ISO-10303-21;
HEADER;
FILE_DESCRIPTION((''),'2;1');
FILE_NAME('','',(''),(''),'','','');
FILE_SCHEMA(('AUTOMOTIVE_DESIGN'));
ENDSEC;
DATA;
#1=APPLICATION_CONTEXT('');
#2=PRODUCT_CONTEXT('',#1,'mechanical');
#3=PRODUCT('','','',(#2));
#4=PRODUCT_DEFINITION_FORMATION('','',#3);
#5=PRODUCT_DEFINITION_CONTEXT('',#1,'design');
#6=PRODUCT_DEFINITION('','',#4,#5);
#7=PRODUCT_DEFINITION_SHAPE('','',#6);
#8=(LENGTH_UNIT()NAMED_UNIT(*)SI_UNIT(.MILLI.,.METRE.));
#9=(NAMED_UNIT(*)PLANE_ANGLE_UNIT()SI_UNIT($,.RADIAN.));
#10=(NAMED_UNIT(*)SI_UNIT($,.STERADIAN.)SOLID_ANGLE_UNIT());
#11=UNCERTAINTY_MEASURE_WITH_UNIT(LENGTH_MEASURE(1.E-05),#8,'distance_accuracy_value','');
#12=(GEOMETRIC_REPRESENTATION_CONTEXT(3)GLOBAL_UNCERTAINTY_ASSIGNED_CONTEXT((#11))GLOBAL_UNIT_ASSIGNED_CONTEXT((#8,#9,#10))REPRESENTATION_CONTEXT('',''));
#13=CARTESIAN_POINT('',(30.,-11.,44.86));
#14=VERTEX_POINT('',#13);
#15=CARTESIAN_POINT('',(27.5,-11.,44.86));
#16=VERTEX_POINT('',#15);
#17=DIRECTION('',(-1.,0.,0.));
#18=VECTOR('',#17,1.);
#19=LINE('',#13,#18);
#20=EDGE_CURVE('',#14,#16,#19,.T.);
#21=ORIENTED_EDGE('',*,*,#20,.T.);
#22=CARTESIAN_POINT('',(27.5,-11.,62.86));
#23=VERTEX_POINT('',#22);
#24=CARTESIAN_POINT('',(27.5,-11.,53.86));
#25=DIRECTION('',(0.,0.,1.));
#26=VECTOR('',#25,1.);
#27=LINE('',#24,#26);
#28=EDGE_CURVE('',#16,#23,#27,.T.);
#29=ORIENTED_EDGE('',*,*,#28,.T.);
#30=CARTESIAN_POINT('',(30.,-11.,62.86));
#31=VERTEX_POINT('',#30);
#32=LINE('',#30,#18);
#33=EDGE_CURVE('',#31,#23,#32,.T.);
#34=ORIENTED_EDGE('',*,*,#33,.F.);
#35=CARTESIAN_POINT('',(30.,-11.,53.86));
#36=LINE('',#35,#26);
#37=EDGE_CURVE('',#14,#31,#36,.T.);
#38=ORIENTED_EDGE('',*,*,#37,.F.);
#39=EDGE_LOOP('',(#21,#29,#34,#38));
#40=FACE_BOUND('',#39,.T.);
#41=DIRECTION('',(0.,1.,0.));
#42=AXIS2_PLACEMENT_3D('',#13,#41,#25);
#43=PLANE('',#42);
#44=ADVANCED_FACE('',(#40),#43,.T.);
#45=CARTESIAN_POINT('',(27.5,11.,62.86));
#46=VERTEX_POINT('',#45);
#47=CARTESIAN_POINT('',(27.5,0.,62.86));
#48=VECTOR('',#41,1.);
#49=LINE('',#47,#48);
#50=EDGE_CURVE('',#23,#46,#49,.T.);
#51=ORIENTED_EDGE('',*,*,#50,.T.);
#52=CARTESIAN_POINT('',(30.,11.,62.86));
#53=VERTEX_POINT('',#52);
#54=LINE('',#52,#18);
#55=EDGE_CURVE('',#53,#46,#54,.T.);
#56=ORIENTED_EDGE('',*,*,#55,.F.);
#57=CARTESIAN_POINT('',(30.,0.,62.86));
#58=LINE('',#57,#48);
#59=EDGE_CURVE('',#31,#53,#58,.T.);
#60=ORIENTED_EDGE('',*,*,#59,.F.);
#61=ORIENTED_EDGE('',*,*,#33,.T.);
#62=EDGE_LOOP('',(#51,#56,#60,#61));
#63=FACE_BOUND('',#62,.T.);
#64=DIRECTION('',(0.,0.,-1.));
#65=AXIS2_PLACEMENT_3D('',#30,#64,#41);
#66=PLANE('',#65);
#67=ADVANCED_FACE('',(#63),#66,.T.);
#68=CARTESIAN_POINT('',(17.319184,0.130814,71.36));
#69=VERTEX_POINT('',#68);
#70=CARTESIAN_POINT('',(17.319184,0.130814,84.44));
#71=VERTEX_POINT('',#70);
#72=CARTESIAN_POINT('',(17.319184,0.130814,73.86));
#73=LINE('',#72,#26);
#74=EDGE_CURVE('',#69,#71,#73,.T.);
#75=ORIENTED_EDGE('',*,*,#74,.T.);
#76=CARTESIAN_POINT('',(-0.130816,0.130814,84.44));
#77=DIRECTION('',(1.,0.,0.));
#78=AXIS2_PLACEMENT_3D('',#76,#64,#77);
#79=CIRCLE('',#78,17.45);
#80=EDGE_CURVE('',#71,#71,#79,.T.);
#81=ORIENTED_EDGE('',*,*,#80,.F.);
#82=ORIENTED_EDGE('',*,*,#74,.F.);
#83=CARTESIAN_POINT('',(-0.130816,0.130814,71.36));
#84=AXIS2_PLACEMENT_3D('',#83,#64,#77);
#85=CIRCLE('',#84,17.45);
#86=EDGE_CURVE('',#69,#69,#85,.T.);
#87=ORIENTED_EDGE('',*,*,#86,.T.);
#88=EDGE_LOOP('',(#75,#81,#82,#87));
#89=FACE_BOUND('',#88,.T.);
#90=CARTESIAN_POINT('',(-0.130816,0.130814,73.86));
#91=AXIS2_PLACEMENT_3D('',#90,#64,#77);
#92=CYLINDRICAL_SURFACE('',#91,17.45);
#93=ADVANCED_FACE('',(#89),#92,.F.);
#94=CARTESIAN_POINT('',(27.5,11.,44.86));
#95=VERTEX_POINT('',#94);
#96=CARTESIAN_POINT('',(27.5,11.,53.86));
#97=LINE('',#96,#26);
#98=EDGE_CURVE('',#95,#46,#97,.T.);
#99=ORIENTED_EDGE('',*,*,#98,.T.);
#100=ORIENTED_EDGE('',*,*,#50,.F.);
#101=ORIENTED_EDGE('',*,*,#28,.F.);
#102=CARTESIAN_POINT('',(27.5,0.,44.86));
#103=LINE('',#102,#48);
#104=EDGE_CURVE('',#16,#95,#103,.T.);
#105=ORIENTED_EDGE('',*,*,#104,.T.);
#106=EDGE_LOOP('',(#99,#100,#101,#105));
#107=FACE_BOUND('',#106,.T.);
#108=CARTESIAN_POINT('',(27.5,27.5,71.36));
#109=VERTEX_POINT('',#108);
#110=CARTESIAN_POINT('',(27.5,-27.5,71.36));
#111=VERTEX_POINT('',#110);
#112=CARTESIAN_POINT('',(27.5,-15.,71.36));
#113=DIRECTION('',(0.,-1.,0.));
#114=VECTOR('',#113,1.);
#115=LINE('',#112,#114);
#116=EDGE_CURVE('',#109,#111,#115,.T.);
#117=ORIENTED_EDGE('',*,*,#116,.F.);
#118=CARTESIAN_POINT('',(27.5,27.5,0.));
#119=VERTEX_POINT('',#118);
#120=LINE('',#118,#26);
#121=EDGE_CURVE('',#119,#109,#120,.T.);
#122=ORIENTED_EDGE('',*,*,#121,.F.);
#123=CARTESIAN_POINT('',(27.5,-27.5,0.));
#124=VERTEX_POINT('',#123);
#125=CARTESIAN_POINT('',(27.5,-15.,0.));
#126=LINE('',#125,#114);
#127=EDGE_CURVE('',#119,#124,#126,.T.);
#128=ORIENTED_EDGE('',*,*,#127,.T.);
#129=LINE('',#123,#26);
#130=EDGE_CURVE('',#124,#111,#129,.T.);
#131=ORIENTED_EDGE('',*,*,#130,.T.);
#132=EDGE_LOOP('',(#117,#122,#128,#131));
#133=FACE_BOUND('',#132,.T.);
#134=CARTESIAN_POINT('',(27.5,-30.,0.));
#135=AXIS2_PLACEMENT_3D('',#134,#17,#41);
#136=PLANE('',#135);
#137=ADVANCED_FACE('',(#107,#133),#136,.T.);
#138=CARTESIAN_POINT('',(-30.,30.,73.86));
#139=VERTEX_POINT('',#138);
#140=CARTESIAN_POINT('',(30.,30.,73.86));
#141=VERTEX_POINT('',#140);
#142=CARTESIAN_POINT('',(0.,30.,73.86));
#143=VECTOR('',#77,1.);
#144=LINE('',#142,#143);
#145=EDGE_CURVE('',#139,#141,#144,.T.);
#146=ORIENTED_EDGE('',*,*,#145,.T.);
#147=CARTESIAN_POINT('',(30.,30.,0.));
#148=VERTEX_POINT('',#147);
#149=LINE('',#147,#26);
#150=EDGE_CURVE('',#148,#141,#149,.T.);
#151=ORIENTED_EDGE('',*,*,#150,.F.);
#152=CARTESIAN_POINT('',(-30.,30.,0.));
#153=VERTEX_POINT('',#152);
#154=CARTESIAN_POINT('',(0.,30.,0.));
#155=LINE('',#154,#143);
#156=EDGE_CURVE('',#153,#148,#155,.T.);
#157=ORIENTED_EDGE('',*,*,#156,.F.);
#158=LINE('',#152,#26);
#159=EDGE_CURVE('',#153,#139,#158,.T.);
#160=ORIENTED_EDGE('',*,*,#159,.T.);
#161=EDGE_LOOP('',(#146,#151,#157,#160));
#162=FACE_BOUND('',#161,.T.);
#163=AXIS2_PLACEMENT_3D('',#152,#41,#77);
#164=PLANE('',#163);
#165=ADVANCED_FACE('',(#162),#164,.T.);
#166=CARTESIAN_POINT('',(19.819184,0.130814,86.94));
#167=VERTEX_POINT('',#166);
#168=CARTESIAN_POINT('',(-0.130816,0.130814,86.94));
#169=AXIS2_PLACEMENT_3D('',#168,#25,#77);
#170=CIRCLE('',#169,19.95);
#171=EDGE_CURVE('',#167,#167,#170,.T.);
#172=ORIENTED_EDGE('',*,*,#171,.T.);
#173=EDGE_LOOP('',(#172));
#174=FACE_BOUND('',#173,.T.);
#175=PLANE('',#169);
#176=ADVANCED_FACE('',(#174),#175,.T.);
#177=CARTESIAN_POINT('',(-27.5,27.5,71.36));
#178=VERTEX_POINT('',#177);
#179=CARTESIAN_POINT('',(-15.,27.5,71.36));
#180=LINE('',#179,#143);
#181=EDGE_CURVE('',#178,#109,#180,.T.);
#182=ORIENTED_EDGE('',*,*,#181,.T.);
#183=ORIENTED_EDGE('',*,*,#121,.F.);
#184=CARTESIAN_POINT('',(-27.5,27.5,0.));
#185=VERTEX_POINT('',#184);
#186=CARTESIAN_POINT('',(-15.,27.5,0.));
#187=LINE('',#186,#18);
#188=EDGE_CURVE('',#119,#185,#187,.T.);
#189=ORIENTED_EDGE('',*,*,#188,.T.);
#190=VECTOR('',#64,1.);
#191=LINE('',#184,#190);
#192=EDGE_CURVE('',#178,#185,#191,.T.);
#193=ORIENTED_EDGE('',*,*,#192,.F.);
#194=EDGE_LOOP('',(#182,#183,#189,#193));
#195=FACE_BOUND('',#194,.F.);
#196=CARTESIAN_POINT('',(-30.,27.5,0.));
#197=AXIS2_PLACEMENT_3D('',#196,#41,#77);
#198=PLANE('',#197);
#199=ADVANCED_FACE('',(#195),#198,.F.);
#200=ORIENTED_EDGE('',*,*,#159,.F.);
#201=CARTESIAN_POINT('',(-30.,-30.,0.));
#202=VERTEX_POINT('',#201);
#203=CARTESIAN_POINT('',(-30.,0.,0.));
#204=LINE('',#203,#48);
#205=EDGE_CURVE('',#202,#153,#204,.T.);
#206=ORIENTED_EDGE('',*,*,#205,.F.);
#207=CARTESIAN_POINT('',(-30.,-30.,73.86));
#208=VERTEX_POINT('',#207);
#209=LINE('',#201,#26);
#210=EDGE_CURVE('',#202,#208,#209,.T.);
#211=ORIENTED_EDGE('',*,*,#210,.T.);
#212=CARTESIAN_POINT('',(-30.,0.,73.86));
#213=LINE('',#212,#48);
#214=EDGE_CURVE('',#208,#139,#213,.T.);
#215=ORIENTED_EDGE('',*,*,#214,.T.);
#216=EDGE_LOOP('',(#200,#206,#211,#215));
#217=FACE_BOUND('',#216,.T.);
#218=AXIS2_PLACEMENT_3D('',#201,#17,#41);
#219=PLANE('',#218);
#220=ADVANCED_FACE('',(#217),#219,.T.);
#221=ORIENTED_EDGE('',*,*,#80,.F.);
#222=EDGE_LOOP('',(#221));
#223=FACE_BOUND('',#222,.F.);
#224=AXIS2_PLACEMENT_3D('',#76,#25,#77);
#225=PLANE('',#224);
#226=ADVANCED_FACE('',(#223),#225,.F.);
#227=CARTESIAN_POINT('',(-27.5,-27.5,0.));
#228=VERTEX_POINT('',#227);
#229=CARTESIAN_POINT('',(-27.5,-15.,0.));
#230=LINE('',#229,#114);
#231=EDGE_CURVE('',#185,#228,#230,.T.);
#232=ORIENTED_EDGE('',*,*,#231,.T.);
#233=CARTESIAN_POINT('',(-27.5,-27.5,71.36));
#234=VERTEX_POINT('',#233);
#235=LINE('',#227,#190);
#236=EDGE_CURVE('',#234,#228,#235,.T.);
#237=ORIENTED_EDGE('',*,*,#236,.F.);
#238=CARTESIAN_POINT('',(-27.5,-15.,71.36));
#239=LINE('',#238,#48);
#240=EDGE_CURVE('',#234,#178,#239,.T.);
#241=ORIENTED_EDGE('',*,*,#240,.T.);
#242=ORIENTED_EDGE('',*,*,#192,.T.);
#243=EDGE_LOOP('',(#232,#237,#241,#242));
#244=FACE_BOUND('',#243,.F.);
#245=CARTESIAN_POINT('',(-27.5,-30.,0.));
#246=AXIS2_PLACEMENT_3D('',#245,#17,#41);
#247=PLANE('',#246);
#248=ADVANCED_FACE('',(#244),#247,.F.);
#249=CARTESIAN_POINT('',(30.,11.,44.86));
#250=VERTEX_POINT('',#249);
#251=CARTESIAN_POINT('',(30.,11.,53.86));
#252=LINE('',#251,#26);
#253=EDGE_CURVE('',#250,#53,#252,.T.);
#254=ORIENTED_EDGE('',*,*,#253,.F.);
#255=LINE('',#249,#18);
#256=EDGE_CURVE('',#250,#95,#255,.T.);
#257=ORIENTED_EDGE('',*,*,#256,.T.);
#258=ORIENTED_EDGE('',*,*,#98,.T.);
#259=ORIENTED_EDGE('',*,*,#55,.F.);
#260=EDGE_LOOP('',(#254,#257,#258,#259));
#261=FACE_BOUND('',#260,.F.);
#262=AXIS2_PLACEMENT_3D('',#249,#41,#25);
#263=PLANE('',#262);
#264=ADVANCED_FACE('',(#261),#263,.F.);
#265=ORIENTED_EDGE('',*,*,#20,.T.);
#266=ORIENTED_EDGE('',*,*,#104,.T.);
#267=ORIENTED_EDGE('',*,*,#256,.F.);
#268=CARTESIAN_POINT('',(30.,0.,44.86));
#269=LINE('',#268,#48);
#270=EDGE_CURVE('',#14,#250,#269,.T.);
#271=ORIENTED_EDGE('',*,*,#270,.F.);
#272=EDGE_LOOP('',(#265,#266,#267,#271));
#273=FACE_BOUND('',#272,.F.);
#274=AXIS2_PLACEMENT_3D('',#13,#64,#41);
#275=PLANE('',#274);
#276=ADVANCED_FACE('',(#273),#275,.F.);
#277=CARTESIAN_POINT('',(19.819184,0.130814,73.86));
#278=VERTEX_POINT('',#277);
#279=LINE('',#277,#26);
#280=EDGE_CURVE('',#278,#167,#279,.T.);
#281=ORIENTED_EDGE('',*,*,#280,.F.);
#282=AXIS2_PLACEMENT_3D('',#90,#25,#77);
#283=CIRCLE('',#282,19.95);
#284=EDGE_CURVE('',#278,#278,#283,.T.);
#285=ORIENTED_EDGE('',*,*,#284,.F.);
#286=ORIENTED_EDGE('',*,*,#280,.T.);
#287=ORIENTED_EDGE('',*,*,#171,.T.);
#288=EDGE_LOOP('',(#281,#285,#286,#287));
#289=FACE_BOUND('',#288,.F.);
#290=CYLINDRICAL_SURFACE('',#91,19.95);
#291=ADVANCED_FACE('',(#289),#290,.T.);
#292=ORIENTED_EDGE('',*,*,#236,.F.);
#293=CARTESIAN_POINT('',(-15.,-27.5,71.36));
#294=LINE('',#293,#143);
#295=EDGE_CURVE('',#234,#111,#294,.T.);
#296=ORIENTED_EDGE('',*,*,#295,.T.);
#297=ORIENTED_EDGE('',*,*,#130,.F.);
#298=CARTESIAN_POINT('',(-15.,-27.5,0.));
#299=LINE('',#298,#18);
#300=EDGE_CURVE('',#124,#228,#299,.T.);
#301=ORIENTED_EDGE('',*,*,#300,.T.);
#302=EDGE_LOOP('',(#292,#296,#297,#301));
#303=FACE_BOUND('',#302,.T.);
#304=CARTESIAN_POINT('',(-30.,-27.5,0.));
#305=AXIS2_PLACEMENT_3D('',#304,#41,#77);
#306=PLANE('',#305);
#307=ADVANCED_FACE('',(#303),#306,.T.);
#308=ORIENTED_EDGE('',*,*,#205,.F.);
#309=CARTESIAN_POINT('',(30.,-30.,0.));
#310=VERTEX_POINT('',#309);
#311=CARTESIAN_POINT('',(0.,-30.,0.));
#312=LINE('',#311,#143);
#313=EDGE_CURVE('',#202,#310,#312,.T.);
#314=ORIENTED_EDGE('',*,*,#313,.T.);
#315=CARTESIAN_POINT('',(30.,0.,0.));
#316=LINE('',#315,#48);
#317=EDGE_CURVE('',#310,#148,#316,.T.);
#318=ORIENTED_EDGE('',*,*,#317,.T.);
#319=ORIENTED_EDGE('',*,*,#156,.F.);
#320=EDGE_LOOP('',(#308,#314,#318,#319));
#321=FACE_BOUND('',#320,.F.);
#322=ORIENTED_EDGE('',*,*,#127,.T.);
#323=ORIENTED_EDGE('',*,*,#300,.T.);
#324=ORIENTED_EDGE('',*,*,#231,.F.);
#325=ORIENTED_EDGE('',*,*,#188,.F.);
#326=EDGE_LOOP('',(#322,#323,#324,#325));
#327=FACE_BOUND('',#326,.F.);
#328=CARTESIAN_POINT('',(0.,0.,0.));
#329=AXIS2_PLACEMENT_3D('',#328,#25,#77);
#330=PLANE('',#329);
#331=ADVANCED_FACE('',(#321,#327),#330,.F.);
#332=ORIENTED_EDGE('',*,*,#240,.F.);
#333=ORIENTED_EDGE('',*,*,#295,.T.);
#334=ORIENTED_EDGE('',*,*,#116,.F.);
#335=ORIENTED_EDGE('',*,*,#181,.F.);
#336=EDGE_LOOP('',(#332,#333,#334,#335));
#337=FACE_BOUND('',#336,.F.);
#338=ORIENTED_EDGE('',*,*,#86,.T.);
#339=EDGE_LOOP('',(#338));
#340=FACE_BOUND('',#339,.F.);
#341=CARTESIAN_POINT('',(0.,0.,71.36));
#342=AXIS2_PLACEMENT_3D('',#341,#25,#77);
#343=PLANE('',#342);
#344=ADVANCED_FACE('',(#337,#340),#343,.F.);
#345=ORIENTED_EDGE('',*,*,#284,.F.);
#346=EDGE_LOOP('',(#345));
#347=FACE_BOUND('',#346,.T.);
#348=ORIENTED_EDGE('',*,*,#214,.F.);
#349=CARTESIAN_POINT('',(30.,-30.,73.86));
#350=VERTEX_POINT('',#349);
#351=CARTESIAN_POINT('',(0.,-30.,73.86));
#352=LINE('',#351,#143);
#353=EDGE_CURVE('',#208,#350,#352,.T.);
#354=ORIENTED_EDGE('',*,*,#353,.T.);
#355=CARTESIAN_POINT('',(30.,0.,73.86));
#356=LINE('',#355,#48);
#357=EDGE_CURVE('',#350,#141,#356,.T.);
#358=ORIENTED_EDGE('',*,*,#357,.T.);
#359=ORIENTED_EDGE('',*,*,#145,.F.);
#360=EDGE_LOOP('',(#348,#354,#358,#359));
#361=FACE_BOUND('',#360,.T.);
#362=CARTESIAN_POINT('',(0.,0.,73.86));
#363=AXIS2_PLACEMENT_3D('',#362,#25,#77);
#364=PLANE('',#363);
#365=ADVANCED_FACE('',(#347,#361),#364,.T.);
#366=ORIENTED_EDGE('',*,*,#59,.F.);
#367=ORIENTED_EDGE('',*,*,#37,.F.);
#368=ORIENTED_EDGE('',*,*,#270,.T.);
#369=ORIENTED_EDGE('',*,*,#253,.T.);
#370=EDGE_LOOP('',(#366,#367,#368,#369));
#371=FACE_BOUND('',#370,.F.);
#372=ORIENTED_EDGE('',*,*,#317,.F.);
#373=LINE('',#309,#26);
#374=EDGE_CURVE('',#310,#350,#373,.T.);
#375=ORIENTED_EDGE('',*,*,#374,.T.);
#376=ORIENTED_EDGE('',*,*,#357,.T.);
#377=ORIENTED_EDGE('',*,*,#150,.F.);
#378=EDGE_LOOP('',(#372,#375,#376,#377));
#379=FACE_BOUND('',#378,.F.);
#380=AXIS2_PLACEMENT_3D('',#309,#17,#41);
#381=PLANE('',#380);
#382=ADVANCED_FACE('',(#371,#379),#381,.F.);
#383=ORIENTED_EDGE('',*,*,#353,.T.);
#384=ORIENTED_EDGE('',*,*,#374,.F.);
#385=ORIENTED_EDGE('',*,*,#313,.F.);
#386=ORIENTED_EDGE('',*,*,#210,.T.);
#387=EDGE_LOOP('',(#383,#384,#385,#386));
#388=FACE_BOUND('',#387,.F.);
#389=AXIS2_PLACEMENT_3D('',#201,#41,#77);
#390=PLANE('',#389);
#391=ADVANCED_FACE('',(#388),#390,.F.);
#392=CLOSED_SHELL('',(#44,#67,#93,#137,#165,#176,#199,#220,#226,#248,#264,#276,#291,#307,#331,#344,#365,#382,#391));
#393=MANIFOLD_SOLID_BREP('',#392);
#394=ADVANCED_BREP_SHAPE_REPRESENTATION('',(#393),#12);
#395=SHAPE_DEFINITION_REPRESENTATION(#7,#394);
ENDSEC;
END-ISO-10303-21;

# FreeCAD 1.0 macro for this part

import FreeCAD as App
import Part
import Sketcher
from FreeCAD import Vector


def faces_at(feature, points):
    """Names of the faces that lie closest to the given points."""
    faces = feature.Shape.Faces
    near = lambda p: min(range(len(faces)), key=lambda i: faces[i].distToShape(Part.Vertex(*p))[0])
    return sorted({f"Face{near(p) + 1}" for p in points})

doc = App.newDocument("Part")
params = doc.addObject("Spreadsheet::Sheet", "Params")
for row, (alias, value) in enumerate([
    ("sketch1_width", "60 mm"),
    ("pad1_length", "73.86 mm"),
    ("sketch2_diameter", "39.9 mm"),
    ("pad2_length", "13.08 mm"),
    ("thickness_wall", "2.5 mm"),
    ("sketch3_width", "22 mm"),
    ("sketch3_height", "18 mm"),
    ("pocket1_length", "2.5 mm"),
], start=1):
    params.set(f"A{row}", alias)
    params.set(f"B{row}", "=" + value)
    params.setAlias(f"B{row}", alias)

body = doc.addObject("PartDesign::Body", "Body")

sketch1 = body.newObject("Sketcher::SketchObject", "Sketch")
sketch1.AttachmentSupport = (doc.getObject("XY_Plane"), [""])
sketch1.MapMode = "FlatFace"
sketch1.addGeometry([
    Part.LineSegment(Vector(-30, 30, 0), Vector(-30, -30, 0)),
    Part.LineSegment(Vector(-30, -30, 0), Vector(30, -30, 0)),
    Part.LineSegment(Vector(30, -30, 0), Vector(30, 30, 0)),
    Part.LineSegment(Vector(30, 30, 0), Vector(-30, 30, 0)),
], False)
sketch1.addConstraint([
    Sketcher.Constraint("Coincident", 0, 2, 1, 1),
    Sketcher.Constraint("Coincident", 1, 2, 2, 1),
    Sketcher.Constraint("Coincident", 2, 2, 3, 1),
    Sketcher.Constraint("Coincident", 3, 2, 0, 1),
    Sketcher.Constraint("Vertical", 0),
    Sketcher.Constraint("Horizontal", 1),
    Sketcher.Constraint("Vertical", 2),
    Sketcher.Constraint("Horizontal", 3),
    Sketcher.Constraint("Symmetric", 0, 2, 2, 2, -1, 1),
    Sketcher.Constraint("Equal", 3, 0),
    Sketcher.Constraint("DistanceX", 1, 1, 1, 2, 60.0),
])
sketch1.setExpression("Constraints[10]", "Params.sketch1_width")
pad1 = body.newObject("PartDesign::Pad", "Pad")
pad1.Profile = sketch1
pad1.setExpression("Length", "Params.pad1_length")

sketch2 = body.newObject("Sketcher::SketchObject", "Sketch001")
sketch2.AttachmentSupport = (doc.getObject("XY_Plane"), [""])
sketch2.MapMode = "FlatFace"
sketch2.AttachmentOffset = App.Placement(Vector(0, 0, 73.86), App.Rotation())
sketch2.addGeometry(Part.Circle(Vector(0, 0, 0), Vector(0, 0, 1), 20), False)
sketch2.addConstraint([
    Sketcher.Constraint("Diameter", 0, 39.9),
    Sketcher.Constraint("DistanceX", 0, 3, -1, 1, 0.130816),
    Sketcher.Constraint("DistanceY", -1, 1, 0, 3, 0.130814),
])
sketch2.setExpression("Constraints[0]", "Params.sketch2_diameter")
pad2 = body.newObject("PartDesign::Pad", "Pad001")
pad2.Profile = sketch2
pad2.setExpression("Length", "Params.pad2_length")
doc.recompute()

thickness = body.newObject("PartDesign::Thickness", "Thickness")
thickness.Base = (pad2, faces_at(pad2, [(0, 0, 0)]))
thickness.setExpression("Value", "Params.thickness_wall")
thickness.Reversed = True
thickness.Join = "Intersection"

sketch3 = body.newObject("Sketcher::SketchObject", "Sketch002")
sketch3.AttachmentSupport = (doc.getObject("YZ_Plane"), [""])
sketch3.MapMode = "FlatFace"
sketch3.AttachmentOffset = App.Placement(Vector(0, 0, 30), App.Rotation())
sketch3.addGeometry([
    Part.LineSegment(Vector(-11, 63, 0), Vector(-11, 45, 0)),
    Part.LineSegment(Vector(-11, 45, 0), Vector(11, 45, 0)),
    Part.LineSegment(Vector(11, 45, 0), Vector(11, 63, 0)),
    Part.LineSegment(Vector(11, 63, 0), Vector(-11, 63, 0)),
], False)
sketch3.addConstraint([
    Sketcher.Constraint("Coincident", 0, 2, 1, 1),
    Sketcher.Constraint("Coincident", 1, 2, 2, 1),
    Sketcher.Constraint("Coincident", 2, 2, 3, 1),
    Sketcher.Constraint("Coincident", 3, 2, 0, 1),
    Sketcher.Constraint("Vertical", 0),
    Sketcher.Constraint("Horizontal", 1),
    Sketcher.Constraint("Vertical", 2),
    Sketcher.Constraint("Horizontal", 3),
    Sketcher.Constraint("DistanceX", 1, 1, 1, 2, 22.0),
    Sketcher.Constraint("DistanceY", 0, 2, 0, 1, 18.0),
    Sketcher.Constraint("DistanceX", 0, 2, -1, 1, 11.0),
    Sketcher.Constraint("DistanceY", -1, 1, 0, 2, 44.86),
])
sketch3.setExpression("Constraints[8]", "Params.sketch3_width")
sketch3.setExpression("Constraints[9]", "Params.sketch3_height")
pocket1 = body.newObject("PartDesign::Pocket", "Pocket")
pocket1.Profile = sketch3
pocket1.setExpression("Length", "Params.pocket1_length")

doc.recompute()
